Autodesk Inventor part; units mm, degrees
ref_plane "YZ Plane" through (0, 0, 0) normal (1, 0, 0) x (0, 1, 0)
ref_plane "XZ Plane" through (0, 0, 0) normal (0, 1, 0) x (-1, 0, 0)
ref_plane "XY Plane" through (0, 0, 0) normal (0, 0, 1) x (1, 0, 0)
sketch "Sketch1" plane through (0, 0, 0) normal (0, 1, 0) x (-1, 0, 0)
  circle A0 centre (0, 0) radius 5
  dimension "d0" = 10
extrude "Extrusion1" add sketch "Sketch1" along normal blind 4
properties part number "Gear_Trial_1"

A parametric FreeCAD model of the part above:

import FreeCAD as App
import Part
import Sketcher
from FreeCAD import Vector

doc = App.newDocument("Part")
body = doc.addObject("PartDesign::Body", "Body")

sketch1 = body.newObject("Sketcher::SketchObject", "Sketch")
sketch1.AttachmentSupport = (doc.getObject("XZ_Plane"), [""])
sketch1.MapMode = "FlatFace"
sketch1.addGeometry(Part.Circle(Vector(0, 0, 0), Vector(0, 0, 1), 5), False)
sketch1.addConstraint([
    Sketcher.Constraint("Coincident", 0, 3, -1, 1),
    Sketcher.Constraint("Diameter", 0, 10.0),
])
pad1 = body.newObject("PartDesign::Pad", "Pad")
pad1.Profile = sketch1
pad1.Length = 4
pad1.Reversed = True

doc.recompute()
